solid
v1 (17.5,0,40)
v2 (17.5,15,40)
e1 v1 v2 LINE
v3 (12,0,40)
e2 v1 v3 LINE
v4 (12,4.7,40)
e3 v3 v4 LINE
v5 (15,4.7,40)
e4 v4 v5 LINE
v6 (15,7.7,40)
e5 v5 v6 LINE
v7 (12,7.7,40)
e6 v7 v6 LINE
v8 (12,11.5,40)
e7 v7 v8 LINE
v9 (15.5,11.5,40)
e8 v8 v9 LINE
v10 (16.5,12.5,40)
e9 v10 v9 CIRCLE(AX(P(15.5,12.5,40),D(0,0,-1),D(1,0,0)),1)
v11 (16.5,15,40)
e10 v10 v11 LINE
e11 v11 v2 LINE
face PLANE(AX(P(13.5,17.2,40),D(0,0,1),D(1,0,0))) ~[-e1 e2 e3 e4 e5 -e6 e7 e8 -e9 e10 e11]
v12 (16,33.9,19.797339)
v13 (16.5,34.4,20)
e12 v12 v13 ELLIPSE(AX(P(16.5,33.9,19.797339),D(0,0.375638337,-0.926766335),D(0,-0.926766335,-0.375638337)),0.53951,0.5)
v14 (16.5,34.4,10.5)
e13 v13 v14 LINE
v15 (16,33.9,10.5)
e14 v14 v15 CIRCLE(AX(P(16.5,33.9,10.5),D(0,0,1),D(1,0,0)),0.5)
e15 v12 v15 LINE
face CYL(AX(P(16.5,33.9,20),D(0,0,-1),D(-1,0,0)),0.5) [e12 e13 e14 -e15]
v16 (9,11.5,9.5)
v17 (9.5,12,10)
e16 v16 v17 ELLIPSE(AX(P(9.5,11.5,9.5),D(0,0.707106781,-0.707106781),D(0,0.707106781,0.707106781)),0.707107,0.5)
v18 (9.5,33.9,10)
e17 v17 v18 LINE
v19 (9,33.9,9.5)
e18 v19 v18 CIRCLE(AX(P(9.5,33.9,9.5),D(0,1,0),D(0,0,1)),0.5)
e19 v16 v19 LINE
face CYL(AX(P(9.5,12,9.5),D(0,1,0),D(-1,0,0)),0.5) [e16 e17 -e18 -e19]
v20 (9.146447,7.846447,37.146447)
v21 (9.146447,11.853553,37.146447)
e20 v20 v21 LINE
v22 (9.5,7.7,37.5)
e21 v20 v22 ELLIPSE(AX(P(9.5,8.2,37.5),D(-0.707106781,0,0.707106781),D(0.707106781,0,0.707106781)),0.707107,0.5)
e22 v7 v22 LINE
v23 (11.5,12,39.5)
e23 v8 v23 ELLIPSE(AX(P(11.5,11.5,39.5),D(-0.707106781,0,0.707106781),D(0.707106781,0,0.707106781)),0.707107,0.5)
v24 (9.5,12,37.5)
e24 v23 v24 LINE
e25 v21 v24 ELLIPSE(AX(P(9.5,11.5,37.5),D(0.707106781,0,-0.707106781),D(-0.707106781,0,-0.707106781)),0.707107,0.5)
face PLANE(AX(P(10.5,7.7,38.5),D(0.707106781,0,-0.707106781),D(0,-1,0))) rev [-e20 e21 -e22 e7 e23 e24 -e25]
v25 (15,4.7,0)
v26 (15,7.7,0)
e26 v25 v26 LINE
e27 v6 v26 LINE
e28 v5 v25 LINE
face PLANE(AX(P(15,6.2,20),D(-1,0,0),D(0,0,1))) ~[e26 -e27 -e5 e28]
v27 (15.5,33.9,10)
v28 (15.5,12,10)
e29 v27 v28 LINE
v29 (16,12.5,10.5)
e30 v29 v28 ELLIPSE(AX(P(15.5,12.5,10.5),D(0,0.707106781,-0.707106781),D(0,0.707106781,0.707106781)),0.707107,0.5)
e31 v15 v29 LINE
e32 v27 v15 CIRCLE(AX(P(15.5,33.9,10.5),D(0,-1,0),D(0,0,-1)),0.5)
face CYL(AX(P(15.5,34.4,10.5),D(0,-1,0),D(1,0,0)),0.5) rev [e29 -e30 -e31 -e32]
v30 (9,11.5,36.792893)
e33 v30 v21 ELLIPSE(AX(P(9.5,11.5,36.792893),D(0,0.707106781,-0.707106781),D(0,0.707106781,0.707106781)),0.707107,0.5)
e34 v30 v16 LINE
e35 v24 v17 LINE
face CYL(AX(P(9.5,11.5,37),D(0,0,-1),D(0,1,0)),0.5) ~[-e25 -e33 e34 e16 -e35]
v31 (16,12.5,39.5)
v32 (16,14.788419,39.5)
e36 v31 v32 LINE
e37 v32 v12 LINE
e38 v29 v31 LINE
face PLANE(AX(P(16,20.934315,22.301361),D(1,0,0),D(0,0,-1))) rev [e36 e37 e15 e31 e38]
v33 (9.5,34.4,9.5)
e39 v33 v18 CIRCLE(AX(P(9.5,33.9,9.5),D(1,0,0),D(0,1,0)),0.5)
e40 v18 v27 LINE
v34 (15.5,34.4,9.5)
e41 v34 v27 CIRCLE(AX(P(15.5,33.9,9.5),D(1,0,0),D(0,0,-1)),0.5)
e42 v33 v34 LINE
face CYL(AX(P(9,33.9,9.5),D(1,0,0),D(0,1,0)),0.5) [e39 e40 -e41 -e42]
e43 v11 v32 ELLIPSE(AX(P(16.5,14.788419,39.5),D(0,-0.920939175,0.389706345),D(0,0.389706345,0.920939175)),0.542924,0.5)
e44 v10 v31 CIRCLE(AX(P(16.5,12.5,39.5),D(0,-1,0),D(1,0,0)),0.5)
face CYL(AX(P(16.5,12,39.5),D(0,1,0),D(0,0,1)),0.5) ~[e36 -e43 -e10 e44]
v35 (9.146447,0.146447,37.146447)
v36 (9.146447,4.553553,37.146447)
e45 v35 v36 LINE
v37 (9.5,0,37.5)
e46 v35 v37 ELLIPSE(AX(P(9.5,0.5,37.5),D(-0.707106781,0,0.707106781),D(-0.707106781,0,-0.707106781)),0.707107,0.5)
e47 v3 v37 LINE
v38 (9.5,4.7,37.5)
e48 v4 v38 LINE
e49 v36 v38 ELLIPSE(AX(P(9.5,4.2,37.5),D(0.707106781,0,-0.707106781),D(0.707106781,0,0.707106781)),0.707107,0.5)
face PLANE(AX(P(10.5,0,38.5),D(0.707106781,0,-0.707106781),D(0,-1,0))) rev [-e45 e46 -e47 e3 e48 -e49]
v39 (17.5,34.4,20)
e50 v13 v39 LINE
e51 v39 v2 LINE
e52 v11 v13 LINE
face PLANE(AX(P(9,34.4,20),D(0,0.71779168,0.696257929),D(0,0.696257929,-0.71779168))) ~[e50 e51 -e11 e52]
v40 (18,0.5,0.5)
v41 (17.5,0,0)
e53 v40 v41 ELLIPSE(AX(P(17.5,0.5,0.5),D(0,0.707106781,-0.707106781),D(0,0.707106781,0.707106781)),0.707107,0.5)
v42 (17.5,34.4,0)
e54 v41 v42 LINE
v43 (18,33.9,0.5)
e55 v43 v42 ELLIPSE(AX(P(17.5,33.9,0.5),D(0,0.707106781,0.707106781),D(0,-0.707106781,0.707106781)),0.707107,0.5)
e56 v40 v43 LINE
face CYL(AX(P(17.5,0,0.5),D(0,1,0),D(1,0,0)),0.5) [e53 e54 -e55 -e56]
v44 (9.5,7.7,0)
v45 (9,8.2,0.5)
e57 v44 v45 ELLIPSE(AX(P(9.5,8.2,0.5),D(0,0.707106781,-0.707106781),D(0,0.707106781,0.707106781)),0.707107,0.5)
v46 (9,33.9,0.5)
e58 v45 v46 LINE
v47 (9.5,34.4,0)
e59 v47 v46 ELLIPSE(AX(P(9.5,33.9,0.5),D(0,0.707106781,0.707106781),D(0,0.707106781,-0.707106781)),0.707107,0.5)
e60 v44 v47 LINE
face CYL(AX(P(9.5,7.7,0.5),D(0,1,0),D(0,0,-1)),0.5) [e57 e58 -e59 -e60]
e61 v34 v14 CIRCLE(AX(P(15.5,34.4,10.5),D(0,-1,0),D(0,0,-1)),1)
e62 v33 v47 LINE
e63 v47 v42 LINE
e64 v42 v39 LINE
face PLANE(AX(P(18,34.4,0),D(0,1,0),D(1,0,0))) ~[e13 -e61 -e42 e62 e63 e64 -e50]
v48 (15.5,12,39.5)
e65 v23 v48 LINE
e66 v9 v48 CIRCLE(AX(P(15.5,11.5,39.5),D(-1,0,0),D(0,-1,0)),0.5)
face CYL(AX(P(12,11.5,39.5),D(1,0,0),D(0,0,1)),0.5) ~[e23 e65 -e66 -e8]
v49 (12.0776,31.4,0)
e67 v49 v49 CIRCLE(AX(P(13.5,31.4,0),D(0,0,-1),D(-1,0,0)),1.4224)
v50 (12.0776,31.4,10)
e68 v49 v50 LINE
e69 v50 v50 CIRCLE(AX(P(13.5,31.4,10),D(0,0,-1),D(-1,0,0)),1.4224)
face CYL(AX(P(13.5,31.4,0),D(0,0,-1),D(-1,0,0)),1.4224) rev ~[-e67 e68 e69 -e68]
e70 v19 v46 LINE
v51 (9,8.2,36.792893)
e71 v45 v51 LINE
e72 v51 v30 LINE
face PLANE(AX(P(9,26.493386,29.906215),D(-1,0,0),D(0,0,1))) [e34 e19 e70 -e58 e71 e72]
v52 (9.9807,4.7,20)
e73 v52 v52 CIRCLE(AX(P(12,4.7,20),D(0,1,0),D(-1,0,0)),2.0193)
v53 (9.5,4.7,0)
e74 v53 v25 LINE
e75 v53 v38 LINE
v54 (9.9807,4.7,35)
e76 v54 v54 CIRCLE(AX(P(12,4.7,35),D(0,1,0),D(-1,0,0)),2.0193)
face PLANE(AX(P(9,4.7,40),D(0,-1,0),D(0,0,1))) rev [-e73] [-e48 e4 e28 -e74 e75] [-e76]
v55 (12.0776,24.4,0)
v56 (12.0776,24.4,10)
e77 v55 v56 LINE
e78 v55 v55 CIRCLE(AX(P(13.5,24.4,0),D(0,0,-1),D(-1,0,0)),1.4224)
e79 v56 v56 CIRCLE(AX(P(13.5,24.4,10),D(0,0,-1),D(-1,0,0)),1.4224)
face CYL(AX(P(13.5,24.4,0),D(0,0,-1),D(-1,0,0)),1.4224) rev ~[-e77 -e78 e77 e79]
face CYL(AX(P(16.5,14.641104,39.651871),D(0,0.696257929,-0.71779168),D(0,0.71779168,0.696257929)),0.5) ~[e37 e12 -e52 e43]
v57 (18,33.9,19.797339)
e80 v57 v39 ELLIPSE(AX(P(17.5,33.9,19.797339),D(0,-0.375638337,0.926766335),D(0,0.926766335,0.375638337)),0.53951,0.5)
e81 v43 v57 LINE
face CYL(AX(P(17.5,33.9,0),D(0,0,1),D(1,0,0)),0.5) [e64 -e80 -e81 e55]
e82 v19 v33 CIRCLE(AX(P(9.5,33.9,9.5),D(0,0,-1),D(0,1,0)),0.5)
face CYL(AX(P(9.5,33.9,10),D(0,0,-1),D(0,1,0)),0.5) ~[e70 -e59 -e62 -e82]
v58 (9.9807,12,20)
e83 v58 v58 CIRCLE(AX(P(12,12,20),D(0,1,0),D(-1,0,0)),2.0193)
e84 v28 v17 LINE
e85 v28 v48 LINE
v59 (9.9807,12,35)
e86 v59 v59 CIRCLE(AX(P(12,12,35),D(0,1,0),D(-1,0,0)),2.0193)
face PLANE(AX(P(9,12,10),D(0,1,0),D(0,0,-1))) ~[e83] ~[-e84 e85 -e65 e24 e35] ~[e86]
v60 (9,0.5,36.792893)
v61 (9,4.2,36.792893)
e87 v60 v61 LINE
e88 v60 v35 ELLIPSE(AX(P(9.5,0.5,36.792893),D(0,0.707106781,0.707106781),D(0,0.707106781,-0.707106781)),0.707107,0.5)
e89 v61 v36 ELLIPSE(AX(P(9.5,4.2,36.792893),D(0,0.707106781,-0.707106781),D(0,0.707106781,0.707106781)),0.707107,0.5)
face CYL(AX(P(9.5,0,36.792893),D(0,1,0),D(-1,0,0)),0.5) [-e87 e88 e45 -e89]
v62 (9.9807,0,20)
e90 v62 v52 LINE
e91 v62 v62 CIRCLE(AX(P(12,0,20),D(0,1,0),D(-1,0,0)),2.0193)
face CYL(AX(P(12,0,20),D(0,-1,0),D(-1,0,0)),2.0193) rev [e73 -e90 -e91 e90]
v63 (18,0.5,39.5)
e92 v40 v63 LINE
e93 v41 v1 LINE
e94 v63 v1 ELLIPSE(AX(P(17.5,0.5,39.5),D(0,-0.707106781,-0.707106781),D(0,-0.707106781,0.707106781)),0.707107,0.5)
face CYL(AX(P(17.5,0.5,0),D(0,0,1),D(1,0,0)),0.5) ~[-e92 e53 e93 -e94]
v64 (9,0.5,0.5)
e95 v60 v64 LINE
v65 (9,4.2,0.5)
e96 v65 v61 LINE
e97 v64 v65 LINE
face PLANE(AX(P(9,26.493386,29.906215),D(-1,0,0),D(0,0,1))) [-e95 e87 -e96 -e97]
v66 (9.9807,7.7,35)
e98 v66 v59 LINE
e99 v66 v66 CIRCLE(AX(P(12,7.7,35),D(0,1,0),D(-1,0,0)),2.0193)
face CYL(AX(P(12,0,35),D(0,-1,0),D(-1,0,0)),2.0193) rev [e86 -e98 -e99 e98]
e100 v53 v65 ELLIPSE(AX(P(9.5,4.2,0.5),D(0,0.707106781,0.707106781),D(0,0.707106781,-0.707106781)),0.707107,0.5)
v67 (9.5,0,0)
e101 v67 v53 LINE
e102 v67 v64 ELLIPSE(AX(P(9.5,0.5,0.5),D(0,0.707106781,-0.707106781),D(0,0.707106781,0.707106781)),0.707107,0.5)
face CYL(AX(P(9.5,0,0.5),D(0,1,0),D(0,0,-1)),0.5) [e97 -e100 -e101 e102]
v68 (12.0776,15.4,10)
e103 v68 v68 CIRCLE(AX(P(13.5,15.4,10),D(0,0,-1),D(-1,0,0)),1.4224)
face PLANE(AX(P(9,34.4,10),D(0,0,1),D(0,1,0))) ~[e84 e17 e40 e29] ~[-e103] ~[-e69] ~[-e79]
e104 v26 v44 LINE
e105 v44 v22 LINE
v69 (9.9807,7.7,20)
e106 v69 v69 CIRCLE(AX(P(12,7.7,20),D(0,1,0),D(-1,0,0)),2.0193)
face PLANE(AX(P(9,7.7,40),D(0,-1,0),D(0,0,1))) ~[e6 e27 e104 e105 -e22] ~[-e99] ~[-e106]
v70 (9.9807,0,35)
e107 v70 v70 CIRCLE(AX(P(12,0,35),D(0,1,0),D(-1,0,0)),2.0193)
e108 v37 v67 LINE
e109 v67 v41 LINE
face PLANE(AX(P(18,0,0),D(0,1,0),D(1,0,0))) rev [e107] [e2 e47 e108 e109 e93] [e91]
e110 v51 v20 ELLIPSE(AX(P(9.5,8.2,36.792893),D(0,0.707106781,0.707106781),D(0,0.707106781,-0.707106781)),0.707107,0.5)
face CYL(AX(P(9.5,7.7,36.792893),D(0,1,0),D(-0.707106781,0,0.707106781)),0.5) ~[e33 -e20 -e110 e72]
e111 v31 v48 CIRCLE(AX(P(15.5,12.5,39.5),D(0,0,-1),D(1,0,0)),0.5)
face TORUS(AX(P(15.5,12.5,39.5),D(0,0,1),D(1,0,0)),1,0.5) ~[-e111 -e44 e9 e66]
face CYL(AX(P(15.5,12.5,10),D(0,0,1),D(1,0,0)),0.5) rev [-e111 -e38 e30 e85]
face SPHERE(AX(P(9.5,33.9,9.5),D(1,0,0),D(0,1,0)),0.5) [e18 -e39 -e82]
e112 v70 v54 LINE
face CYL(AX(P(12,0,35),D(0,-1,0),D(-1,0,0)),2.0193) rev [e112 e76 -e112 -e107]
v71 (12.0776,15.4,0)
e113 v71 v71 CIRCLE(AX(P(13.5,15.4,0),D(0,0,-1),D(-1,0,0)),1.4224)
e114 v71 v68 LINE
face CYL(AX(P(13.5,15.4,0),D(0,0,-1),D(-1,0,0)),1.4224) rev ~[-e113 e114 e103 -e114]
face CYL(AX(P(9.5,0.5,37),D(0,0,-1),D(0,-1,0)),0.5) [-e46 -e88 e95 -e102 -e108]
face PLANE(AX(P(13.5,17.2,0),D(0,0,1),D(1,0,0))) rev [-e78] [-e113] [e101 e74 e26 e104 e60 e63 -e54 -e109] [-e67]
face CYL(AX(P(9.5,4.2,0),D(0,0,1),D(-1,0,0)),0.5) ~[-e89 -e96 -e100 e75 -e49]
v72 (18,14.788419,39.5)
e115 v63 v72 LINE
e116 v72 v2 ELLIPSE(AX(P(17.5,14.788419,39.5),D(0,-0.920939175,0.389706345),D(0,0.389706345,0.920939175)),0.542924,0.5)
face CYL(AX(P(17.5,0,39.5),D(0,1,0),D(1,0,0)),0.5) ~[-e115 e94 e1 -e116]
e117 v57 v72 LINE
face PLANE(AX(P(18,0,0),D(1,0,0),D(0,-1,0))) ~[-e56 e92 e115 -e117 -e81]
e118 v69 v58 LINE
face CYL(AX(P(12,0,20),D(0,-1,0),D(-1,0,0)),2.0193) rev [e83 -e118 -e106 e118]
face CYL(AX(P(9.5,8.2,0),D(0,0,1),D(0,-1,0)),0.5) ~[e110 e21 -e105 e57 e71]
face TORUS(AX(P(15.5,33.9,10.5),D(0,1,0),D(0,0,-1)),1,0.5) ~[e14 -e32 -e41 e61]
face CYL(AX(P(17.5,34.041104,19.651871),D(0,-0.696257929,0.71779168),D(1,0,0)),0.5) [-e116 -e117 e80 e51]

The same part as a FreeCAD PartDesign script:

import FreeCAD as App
import Part
import Sketcher


def edges_at(feature, points):
    """Names of the edges that pass closest to the given points."""
    edges = feature.Shape.Edges
    near = lambda p: min(range(len(edges)), key=lambda i: edges[i].distToShape(Part.Vertex(*p))[0])
    return sorted({f"Edge{near(p) + 1}" for p in points})


def add_polygon(sketch, points):
    """Adds a closed chain of lines whose ends are joined by coincident constraints."""
    first, n = sketch.GeometryCount, len(points)
    for a, b in zip(points, points[1:] + points[:1]):
        sketch.addGeometry(Part.LineSegment(App.Vector(*a, 0), App.Vector(*b, 0)), False)
    for i in range(n):
        sketch.addConstraint(Sketcher.Constraint("Coincident", first + i, 2, first + (i + 1) % n, 1))

doc = App.newDocument("Part")
body = doc.addObject("PartDesign::Body", "Body")

# Sketch on XY plane
sketch1 = body.newObject("Sketcher::SketchObject", "Sketch")
sketch1.AttachmentSupport = (doc.getObject("XY_Plane"), [""])
sketch1.MapMode = "FlatFace"
add_polygon(sketch1, [(0, 34.4), (0, 0), (9, 0), (9, 34.4)])  # lines 0-3
sketch1.addConstraint([
    Sketcher.Constraint("Vertical", 0),
    Sketcher.Constraint("Horizontal", 1),
    Sketcher.Constraint("Vertical", 2),
    Sketcher.Constraint("Horizontal", 3),
    Sketcher.Constraint("Coincident", 0, 2, -1, 1),
    Sketcher.Constraint("DistanceX", 1, 1, 1, 2, 9.0),
    Sketcher.Constraint("DistanceY", 0, 2, 0, 1, 34.4),
])
pad1 = body.newObject("PartDesign::Pad", "Pad")
pad1.Profile = sketch1
pad1.Length = 40

# Sketch on XY plane
sketch2 = body.newObject("Sketcher::SketchObject", "Sketch001")
sketch2.AttachmentSupport = (doc.getObject("XY_Plane"), [""])
sketch2.MapMode = "FlatFace"
sketch2.addGeometry([
    Part.Circle(App.Vector(4.5, 24.4, 0), App.Vector(0, 0, 1), 1.4224),
    Part.Circle(App.Vector(4.5, 31.4, 0), App.Vector(0, 0, 1), 1.4224),
    Part.Circle(App.Vector(4.5, 15.4, 0), App.Vector(0, 0, 1), 1.4224),
], False)
sketch2.addConstraint([
    Sketcher.Constraint("Equal", 0, 1),
    Sketcher.Constraint("Equal", 1, 2),
    Sketcher.Constraint("Vertical", 0, 3, 1, 3),
    Sketcher.Constraint("Vertical", 1, 3, 2, 3),
    Sketcher.Constraint("DistanceY", 0, 3, 1, 3, 7.0),
    Sketcher.Constraint("DistanceY", 2, 3, 0, 3, 9.0),
    Sketcher.Constraint("Diameter", 0, 2.8448),
    Sketcher.Constraint("DistanceX", -1, 1, 0, 3, 4.5),
    Sketcher.Constraint("DistanceY", -1, 1, 0, 3, 24.4),
])
pocket1 = body.newObject("PartDesign::Pocket", "Pocket")
pocket1.Profile = sketch2
pocket1.Length = 10
pocket1.Reversed = True

# Sketch on YZ plane
sketch3 = body.newObject("Sketcher::SketchObject", "Sketch002")
sketch3.AttachmentSupport = (doc.getObject("YZ_Plane"), [""])
sketch3.MapMode = "FlatFace"
sketch3.AttachmentOffset = App.Placement(App.Vector(0, 0, 9), App.Rotation())
add_polygon(sketch3, [(7.7, 40), (4.7, 40), (4.7, 0), (7.7, 0)])  # lines 0-3
sketch3.addConstraint([
    Sketcher.Constraint("Horizontal", 0),
    Sketcher.Constraint("Vertical", 1),
    Sketcher.Constraint("Horizontal", 2),
    Sketcher.Constraint("Vertical", 3),
    Sketcher.Constraint("PointOnObject", 1, 2, -1),
    Sketcher.Constraint("DistanceX", 0, 2, 0, 1, 3.0),
    Sketcher.Constraint("DistanceY", 1, 2, 1, 1, 40.0),
    Sketcher.Constraint("DistanceX", -1, 1, 0, 2, 4.7),
])
pocket2 = body.newObject("PartDesign::Pocket", "Pocket001")
pocket2.Profile = sketch3
pocket2.Length = 6

# Sketch on YZ plane
sketch4 = body.newObject("Sketcher::SketchObject", "Sketch003")
sketch4.AttachmentSupport = (doc.getObject("YZ_Plane"), [""])
sketch4.MapMode = "FlatFace"
sketch4.AttachmentOffset = App.Placement(App.Vector(0, 0, 9), App.Rotation())
add_polygon(sketch4, [(15, 40), (34.4, 20), (51.913157, 48.379363)])  # lines 0-2
sketch4.addConstraint([
    Sketcher.Constraint("DistanceY", -1, 1, 0, 2, 20.0),
    Sketcher.Constraint("DistanceX", -1, 1, 2, 2, 15.0),
    Sketcher.Constraint("DistanceY", -1, 1, 2, 2, 40.0),
    Sketcher.Constraint("DistanceX", -1, 1, 0, 2, 34.4),
    Sketcher.Constraint("Distance", 1, 33.348147),
    Sketcher.Constraint("Distance", 2, 37.852277),
])
pocket3 = body.newObject("PartDesign::Pocket", "Pocket002")
pocket3.Profile = sketch4
pocket3.Length = 9

# Sketch on YZ plane
sketch5 = body.newObject("Sketcher::SketchObject", "Sketch004")
sketch5.AttachmentSupport = (doc.getObject("YZ_Plane"), [""])
sketch5.MapMode = "FlatFace"
sketch5.AttachmentOffset = App.Placement(App.Vector(0, 0, 9), App.Rotation())
add_polygon(sketch5, [(34.4, 20), (34.4, 10), (12, 10), (12, 40), (15, 40)])  # lines 0-4
sketch5.addConstraint([
    Sketcher.Constraint("Vertical", 0),
    Sketcher.Constraint("Horizontal", 1),
    Sketcher.Constraint("Vertical", 2),
    Sketcher.Constraint("Horizontal", 3),
    Sketcher.Constraint("DistanceX", 3, 1, 3, 2, 3.0),
    Sketcher.Constraint("DistanceY", 0, 2, 0, 1, 10.0),
    Sketcher.Constraint("DistanceY", 2, 1, 2, 2, 30.0),
    Sketcher.Constraint("DistanceX", 1, 2, 1, 1, 22.4),
    Sketcher.Constraint("DistanceY", -1, 1, 0, 2, 10.0),
    Sketcher.Constraint("DistanceX", -1, 1, 1, 2, 12.0),
])
pocket4 = body.newObject("PartDesign::Pocket", "Pocket003")
pocket4.Profile = sketch5
pocket4.Length = 7

# Sketch on XZ plane
sketch6 = body.newObject("Sketcher::SketchObject", "Sketch005")
sketch6.AttachmentSupport = (doc.getObject("XZ_Plane"), [""])
sketch6.MapMode = "FlatFace"
sketch6.addGeometry([
    Part.Circle(App.Vector(6, 35, 0), App.Vector(0, 0, 1), 2.0193),
    Part.Circle(App.Vector(6, 20, 0), App.Vector(0, 0, 1), 2.0193),
], False)
sketch6.addConstraint([
    Sketcher.Constraint("Equal", 0, 1),
    Sketcher.Constraint("Vertical", 0, 3, 1, 3),
    Sketcher.Constraint("DistanceX", -1, 1, 0, 3, 6.0),
    Sketcher.Constraint("DistanceY", -1, 1, 0, 3, 35.0),
    Sketcher.Constraint("DistanceY", -1, 1, 1, 3, 20.0),
    Sketcher.Constraint("Diameter", 0, 4.0386),
])
pocket5 = body.newObject("PartDesign::Pocket", "Pocket004")
pocket5.Profile = sketch6
pocket5.Length = 20
doc.recompute()

fillet = body.newObject("PartDesign::Fillet", "Fillet")
fillet.Base = (pocket5, edges_at(pocket5, [
    (0, 0, 20),
    (0, 7.5, 40),
    (0, 34.4, 10),
    (0, 24.7, 30),
    (0, 17.2, 0),
]))
fillet.Radius = 0.5
doc.recompute()

chamfer = body.newObject("PartDesign::Chamfer", "Chamfer")
chamfer.Base = (fillet, edges_at(fillet, [(9, 2.35, 40), (9, 9.85, 40)]))
chamfer.Size = 3
body2 = doc.addObject("PartDesign::Body", "Body001")
doc.recompute()

body2.BaseFeature = body
doc.recompute()

mirroring = doc.addObject("Part::Mirroring", "Mirroring")
mirroring.Source = body
mirroring.Base = App.Vector(9, 0, 40)
mirroring.Normal = App.Vector(-1, 0, 0)
body3 = doc.addObject("PartDesign::Body", "Body002")
body3.BaseFeature = mirroring
boolean = body2.newObject("PartDesign::Boolean", "Boolean")
boolean.Type = "Fuse"
boolean.addObjects([body3])
doc.recompute()

# Sketch on YZ plane
sketch7 = body2.newObject("Sketcher::SketchObject", "Sketch006")
sketch7.AttachmentSupport = (doc.getObject("YZ_Plane001"), [""])
sketch7.MapMode = "FlatFace"
add_polygon(sketch7, [(74.076351, -7.248861), (-21.08958, -7.248861), (-21.08958, 67.06129), (74.076351, 67.06129)])  # lines 0-3
sketch7.addConstraint([
    Sketcher.Constraint("Horizontal", 0),
    Sketcher.Constraint("Vertical", 1),
    Sketcher.Constraint("Horizontal", 2),
    Sketcher.Constraint("Vertical", 3),
    Sketcher.Constraint("DistanceX", 0, 2, 0, 1, 95.165931),
    Sketcher.Constraint("DistanceY", 1, 1, 1, 2, 74.310151),
    Sketcher.Constraint("DistanceX", 0, 2, -1, 1, 21.08958),
    Sketcher.Constraint("DistanceY", 0, 2, -1, 1, 7.248861),
])
pocket6 = body2.newObject("PartDesign::Pocket", "Pocket005")
pocket6.Profile = sketch7
pocket6.Length = 9
pocket6.Reversed = True
doc.recompute()

fillet2 = body2.newObject("PartDesign::Fillet", "Fillet001")
fillet2.Base = (pocket6, edges_at(pocket6, [
    (16, 34.4, 15),
    (16, 13.5, 40),
    (14, 12, 40),
    (16, 24.7, 30),
    (16, 12, 25),
    (16, 23.2, 10),
    (9, 2.35, 37),
    (9, 9.85, 37),
    (12.5, 34.4, 10),
    (9, 2.35, 0),
    (9, 0, 18.5),
    (9, 4.7, 18.5),
    (9, 21.05, 0),
    (9, 7.7, 18.5),
    (9, 34.4, 5),
    (9, 23.2, 10),
    (9, 12, 23.5),
]))
fillet2.Radius = 0.5
mirroring.Visibility = False

doc.recompute()
